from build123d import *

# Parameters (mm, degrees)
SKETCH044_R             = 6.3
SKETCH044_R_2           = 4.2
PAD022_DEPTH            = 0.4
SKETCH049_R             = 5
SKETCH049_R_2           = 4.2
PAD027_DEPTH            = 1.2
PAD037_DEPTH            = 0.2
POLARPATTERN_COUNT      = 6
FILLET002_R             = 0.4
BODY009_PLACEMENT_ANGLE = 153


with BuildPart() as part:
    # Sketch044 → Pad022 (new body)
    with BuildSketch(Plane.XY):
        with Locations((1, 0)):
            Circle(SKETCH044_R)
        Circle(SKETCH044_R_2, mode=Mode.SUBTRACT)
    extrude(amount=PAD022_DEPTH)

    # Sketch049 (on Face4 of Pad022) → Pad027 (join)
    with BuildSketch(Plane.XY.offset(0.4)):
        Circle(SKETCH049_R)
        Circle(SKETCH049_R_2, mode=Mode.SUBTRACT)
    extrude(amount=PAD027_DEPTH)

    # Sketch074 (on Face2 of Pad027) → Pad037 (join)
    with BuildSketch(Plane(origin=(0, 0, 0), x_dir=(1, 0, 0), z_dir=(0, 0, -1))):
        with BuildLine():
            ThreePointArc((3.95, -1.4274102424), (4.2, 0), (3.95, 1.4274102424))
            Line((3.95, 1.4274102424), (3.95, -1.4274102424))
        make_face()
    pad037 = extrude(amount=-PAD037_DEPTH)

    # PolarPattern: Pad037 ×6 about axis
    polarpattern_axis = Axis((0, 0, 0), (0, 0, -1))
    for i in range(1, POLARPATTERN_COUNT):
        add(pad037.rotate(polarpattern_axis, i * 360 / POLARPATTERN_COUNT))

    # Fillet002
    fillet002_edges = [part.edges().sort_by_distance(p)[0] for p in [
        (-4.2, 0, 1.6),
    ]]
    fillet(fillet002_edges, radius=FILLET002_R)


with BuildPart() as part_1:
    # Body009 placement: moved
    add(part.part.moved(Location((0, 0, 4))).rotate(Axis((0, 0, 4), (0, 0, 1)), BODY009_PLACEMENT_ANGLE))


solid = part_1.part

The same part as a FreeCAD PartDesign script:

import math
import FreeCAD as App
import Part
import Sketcher
Q = App.Units.Quantity


def edges_at(feature, points):
    """Names of the edges that pass closest to the given points."""
    edges = feature.Shape.Edges
    near = lambda p: min(range(len(edges)), key=lambda i: edges[i].distToShape(Part.Vertex(*p))[0])
    return sorted({f"Edge{near(p) + 1}" for p in points})

doc = App.newDocument("Part")
body = doc.addObject("PartDesign::Body", "Body")

sketch1 = body.newObject("Sketcher::SketchObject", "Sketch")
sketch1.AttachmentSupport = (doc.getObject("XY_Plane"), [""])
sketch1.MapMode = "FlatFace"
sketch1.addGeometry([
    Part.Circle(App.Vector(1, 0, 0), App.Vector(0, 0, 1), 6.3),
    Part.Circle(App.Vector(0, 0, 0), App.Vector(0, 0, 1), 4.2),
], False)
sketch1.addConstraint([
    Sketcher.Constraint("Coincident", 1, 3, -1, 1),
    Sketcher.Constraint("PointOnObject", 0, 3, -1),
    Sketcher.Constraint("Diameter", 0, Q("12.6 mm")),
    Sketcher.Constraint("Diameter", 1, Q("8.4 mm")),
    Sketcher.Constraint("DistanceX", -1, 1, 0, 3, Q("1 mm")),
])
pad1 = body.newObject("PartDesign::Pad", "Pad")
pad1.Profile = sketch1
pad1.Length = 0.4

sketch2 = body.newObject("Sketcher::SketchObject", "Sketch001")
sketch2.AttachmentSupport = (doc.getObject("XY_Plane"), [""])
sketch2.MapMode = "FlatFace"
sketch2.AttachmentOffset = App.Placement(App.Vector(0, 0, 0.4), App.Rotation())
sketch2.addGeometry([
    Part.Circle(App.Vector(0, 0, 0), App.Vector(0, 0, 1), 5),
    Part.Circle(App.Vector(0, 0, 0), App.Vector(0, 0, 1), 4.2),
], False)
sketch2.addConstraint([
    Sketcher.Constraint("Coincident", 0, 3, -1, 1),
    Sketcher.Constraint("Coincident", 1, 3, -1, 1),
    Sketcher.Constraint("Diameter", 0, Q("10 mm")),
    Sketcher.Constraint("Diameter", 1, Q("8.4 mm")),
])
pad2 = body.newObject("PartDesign::Pad", "Pad001")
pad2.Profile = sketch2
pad2.Length = 1.2

sketch3 = body.newObject("Sketcher::SketchObject", "Sketch002")
sketch3.AttachmentSupport = (doc.getObject("XY_Plane"), [""])
sketch3.MapMode = "FlatFace"
sketch3.addGeometry([
    Part.ArcOfCircle(Part.Circle(App.Vector(0, 0, 0), App.Vector(0, 0, 1), 4.2), math.radians(-20), math.radians(20)),
    Part.LineSegment(App.Vector(4, -1.4, 0), App.Vector(4, 1.4, 0)),
], False)
sketch3.addConstraint([
    Sketcher.Constraint("Coincident", 0, 1, 1, 1),
    Sketcher.Constraint("Coincident", 1, 2, 0, 2),
    Sketcher.Constraint("Vertical", 1),
    Sketcher.Constraint("Coincident", 0, 3, -1, 1),
    Sketcher.Constraint("Radius", 0, Q("4.2 mm")),
    Sketcher.Constraint("DistanceX", -1, 1, 0, 1, Q("3.95 mm")),
])
pad3 = body.newObject("PartDesign::Pad", "Pad002")
pad3.Profile = sketch3
pad3.Length = 0.2
doc.recompute()

polarpattern = body.newObject("PartDesign::PolarPattern", "PolarPattern")
polarpattern.Originals = [pad3]
polarpattern.Axis = (doc.getObject("Z_Axis"), [""])
polarpattern.Angle = 360
polarpattern.Occurrences = 6
body.Tip = polarpattern
doc.recompute()

fillet = body.newObject("PartDesign::Fillet", "Fillet")
fillet.Base = (polarpattern, edges_at(polarpattern, [(-4.2, 0, 1.6)]))
fillet.Radius = 0.4
body2 = doc.addObject("PartDesign::Body", "Body001")
doc.recompute()

body.Placement = App.Placement(App.Vector(0, 0, 4), App.Rotation(App.Vector(0, 0, 1), 153))
boolean = body2.newObject("PartDesign::Boolean", "Boolean")
boolean.Type = "Fuse"
boolean.addObjects([body])

doc.recompute()
